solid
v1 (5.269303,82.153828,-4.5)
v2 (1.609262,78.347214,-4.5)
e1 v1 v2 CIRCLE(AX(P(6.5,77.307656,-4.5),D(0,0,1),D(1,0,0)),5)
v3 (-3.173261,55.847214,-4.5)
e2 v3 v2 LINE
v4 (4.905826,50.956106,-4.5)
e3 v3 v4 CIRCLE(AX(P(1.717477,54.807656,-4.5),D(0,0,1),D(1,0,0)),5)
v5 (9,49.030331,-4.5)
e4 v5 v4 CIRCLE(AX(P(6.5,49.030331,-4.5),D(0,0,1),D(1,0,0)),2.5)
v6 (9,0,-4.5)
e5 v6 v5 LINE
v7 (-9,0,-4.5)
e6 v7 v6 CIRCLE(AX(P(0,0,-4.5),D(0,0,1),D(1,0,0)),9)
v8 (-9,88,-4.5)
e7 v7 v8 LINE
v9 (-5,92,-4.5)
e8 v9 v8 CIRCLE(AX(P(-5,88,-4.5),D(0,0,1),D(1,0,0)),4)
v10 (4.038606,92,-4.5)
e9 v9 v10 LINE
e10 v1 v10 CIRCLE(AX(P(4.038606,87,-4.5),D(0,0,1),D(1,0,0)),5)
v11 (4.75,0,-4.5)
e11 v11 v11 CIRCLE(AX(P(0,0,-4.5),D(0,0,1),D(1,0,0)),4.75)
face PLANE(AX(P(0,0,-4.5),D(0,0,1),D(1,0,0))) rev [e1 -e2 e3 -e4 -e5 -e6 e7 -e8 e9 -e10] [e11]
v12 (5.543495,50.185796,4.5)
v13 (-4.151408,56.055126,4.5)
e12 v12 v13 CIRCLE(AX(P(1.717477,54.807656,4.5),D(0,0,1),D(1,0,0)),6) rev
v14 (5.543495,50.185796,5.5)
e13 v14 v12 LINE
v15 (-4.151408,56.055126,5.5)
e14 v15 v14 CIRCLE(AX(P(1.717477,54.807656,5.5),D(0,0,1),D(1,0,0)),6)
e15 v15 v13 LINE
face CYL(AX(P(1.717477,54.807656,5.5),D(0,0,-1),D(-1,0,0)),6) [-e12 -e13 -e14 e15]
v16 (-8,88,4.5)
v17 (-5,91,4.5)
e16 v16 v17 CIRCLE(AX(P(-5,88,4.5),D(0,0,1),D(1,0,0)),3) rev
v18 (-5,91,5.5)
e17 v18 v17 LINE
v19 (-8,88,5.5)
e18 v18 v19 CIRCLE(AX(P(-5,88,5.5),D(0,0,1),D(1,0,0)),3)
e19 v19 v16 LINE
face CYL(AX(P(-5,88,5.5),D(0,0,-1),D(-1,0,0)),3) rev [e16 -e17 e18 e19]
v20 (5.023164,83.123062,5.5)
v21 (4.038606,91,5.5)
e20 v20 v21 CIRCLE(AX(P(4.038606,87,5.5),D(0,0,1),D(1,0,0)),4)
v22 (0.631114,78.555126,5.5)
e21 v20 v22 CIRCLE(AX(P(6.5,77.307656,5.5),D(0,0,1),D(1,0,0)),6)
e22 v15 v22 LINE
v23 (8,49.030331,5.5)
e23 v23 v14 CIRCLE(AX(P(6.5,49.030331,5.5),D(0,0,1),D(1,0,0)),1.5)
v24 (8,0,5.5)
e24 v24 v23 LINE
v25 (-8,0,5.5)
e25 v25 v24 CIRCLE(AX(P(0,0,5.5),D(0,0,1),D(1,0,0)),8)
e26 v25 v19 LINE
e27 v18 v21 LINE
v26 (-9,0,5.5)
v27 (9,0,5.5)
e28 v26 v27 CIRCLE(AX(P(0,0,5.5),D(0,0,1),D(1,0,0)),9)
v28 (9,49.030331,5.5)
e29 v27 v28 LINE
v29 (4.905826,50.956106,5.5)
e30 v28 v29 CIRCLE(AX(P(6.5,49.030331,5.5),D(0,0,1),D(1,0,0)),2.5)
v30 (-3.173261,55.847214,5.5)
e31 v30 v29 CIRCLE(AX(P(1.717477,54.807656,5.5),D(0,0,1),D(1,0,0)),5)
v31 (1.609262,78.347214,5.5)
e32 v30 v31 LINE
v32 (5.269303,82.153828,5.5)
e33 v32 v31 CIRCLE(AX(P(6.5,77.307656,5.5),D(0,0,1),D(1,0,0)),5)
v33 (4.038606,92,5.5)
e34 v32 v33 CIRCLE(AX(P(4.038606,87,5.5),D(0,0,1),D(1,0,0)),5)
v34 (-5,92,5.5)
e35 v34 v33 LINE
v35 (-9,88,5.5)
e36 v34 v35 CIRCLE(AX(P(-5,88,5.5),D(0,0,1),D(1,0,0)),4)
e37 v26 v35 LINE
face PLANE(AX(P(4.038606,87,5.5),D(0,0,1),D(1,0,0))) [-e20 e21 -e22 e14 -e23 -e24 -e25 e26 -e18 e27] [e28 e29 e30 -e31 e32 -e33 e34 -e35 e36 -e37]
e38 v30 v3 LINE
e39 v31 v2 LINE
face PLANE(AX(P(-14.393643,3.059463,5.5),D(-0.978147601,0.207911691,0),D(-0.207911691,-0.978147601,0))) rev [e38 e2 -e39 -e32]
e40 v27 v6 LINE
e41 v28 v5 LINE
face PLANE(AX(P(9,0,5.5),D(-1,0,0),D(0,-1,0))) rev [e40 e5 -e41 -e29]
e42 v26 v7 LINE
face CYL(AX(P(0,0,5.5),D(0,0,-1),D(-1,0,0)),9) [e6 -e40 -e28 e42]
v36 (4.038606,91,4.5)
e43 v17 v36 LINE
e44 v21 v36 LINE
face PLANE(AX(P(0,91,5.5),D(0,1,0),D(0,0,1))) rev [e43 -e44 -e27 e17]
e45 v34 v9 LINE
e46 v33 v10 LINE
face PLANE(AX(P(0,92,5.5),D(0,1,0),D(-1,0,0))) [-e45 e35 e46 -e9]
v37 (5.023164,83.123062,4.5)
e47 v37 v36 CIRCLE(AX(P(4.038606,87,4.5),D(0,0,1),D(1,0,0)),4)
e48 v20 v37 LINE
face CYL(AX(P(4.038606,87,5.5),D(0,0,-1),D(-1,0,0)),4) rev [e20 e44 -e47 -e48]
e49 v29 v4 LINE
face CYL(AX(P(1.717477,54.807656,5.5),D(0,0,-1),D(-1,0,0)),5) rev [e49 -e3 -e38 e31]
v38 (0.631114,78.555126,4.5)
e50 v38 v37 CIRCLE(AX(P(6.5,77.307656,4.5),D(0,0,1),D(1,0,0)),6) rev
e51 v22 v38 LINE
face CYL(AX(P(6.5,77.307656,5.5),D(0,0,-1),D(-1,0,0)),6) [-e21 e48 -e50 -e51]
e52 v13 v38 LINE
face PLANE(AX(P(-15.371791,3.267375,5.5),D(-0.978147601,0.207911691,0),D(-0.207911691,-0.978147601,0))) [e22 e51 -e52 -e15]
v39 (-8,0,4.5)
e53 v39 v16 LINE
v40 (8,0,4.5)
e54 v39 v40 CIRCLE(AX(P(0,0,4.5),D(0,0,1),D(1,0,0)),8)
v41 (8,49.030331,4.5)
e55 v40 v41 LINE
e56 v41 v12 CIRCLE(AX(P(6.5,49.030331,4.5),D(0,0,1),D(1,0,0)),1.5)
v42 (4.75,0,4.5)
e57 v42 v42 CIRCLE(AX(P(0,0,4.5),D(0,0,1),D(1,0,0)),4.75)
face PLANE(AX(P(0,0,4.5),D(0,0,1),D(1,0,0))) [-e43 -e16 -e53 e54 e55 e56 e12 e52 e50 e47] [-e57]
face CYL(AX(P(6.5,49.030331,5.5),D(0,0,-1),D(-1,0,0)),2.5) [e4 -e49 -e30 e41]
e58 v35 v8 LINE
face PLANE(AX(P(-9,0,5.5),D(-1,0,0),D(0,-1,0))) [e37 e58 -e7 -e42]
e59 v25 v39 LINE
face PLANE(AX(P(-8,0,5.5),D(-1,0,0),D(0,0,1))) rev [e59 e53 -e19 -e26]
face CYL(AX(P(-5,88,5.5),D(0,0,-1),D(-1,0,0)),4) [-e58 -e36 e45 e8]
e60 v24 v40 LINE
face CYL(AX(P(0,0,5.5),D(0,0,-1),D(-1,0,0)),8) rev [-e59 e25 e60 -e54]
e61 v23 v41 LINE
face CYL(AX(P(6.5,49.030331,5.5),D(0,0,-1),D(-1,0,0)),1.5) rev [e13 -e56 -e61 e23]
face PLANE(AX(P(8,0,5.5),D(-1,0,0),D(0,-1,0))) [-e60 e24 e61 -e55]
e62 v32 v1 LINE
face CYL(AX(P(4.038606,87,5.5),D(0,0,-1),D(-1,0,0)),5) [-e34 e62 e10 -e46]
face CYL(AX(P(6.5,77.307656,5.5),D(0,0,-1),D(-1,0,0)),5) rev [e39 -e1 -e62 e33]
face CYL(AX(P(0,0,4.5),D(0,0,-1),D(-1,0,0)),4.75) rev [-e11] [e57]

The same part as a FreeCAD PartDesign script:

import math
import FreeCAD as App
import Part
import Sketcher

V = App.Vector
Q = App.Units.Quantity

doc = App.newDocument("Part")
body = doc.addObject("PartDesign::Body", "Body")

sketch1 = body.newObject("Sketcher::SketchObject", "Sketch")
sketch1.AttachmentSupport = (doc.getObject("XY_Plane"), [""])
sketch1.MapMode = "FlatFace"
sketch1.addGeometry([
    Part.LineSegment(V(-8, 88, 0), V(-8, 0, 0)),
    Part.ArcOfCircle(Part.Circle(V(0, 0, 0), V(0, 0, 1), 8), math.radians(180), math.radians(360)),
    Part.LineSegment(V(8, 0, 0), V(8, 49, 0)),
    Part.ArcOfCircle(Part.Circle(V(6.5, 49, 0), V(0, 0, 1), 1.5), math.radians(0), math.radians(130)),
    Part.ArcOfCircle(Part.Circle(V(1.7, 54.8, 0), V(0, 0, 1), 6), math.radians(168), math.radians(310)),
    Part.LineSegment(V(-4.2, 56.1, 0), V(0.6, 78.6, 0)),
    Part.ArcOfCircle(Part.Circle(V(6.5, 77.3, 0), V(0, 0, 1), 6), math.radians(104), math.radians(168)),
    Part.ArcOfCircle(Part.Circle(V(4, 87, 0), V(0, 0, 1), 4), math.radians(-76), math.radians(90)),
    Part.LineSegment(V(4, 91, 0), V(-5, 91, 0)),
    Part.ArcOfCircle(Part.Circle(V(-5, 88, 0), V(0, 0, 1), 3), math.radians(90), math.radians(180)),
    Part.Circle(V(0, 0, 0), V(0, 0, 1), 4.8),
], False)
sketch1.addConstraint([
    Sketcher.Constraint("Tangent", 0, 2, 1, 1),
    Sketcher.Constraint("Tangent", 1, 2, 2, 1),
    Sketcher.Constraint("Tangent", 2, 2, 3, 1),
    Sketcher.Constraint("Tangent", 3, 2, 4, 2),
    Sketcher.Constraint("Tangent", 4, 1, 5, 1),
    Sketcher.Constraint("Tangent", 5, 2, 6, 2),
    Sketcher.Constraint("Tangent", 6, 1, 7, 1),
    Sketcher.Constraint("Tangent", 7, 2, 8, 1),
    Sketcher.Constraint("Tangent", 8, 2, 9, 1),
    Sketcher.Constraint("Tangent", 9, 2, 0, 1),
    Sketcher.Constraint("Vertical", 0),
    Sketcher.Constraint("Vertical", 2),
    Sketcher.Constraint("Horizontal", 8),
    Sketcher.Constraint("Coincident", 1, 3, -1, 1),
    Sketcher.Constraint("Coincident", 10, 3, -1, 1),
    Sketcher.Constraint("Equal", 4, 6),
    Sketcher.Constraint("Vertical", 3, 3, 6, 3),
    Sketcher.Constraint("Radius", 1, 8.0),
    Sketcher.Constraint("Radius", 4, 6.0),
    Sketcher.Constraint("Radius", 7, 4.0),
    Sketcher.Constraint("Radius", 9, 3.0),
    Sketcher.Constraint("Diameter", 10, 9.5),
    Sketcher.Constraint("Radius", 3, 1.5),
    Sketcher.Constraint("DistanceY", 0, 2, 0, 1, 88.0),
    Sketcher.Constraint("Angle", 5, Q("78 deg")),
    Sketcher.Constraint("DistanceY", 4, 3, 6, 3, 22.5),
    Sketcher.Constraint("DistanceY", 2, 1, 2, 2, 49.030331),
])
pad1 = body.newObject("PartDesign::Pad", "Pad")
pad1.Profile = sketch1
pad1.Length = 9
pad1.Midplane = True

sketch2 = body.newObject("Sketcher::SketchObject", "Sketch001")
sketch2.AttachmentSupport = (doc.getObject("XY_Plane"), [""])
sketch2.MapMode = "FlatFace"
sketch2.AttachmentOffset = App.Placement(V(0, 0, 5.5), App.Rotation())
sketch2.addGeometry([
    Part.ArcOfCircle(Part.Circle(V(6.5, 77.3, 0), V(0, 0, 1), 5), math.radians(104), math.radians(168)),
    Part.ArcOfCircle(Part.Circle(V(4, 87, 0), V(0, 0, 1), 5), math.radians(-76), math.radians(90)),
    Part.LineSegment(V(4, 92, 0), V(-5, 92, 0)),
    Part.ArcOfCircle(Part.Circle(V(-5, 88, 0), V(0, 0, 1), 4), math.radians(90), math.radians(180)),
    Part.LineSegment(V(-9, 88, 0), V(-9, 0, 0)),
    Part.ArcOfCircle(Part.Circle(V(0, 0, 0), V(0, 0, 1), 9), math.radians(180), math.radians(360)),
    Part.LineSegment(V(9, 0, 0), V(9, 49, 0)),
    Part.ArcOfCircle(Part.Circle(V(6.5, 49, 0), V(0, 0, 1), 2.5), math.radians(0), math.radians(130)),
    Part.ArcOfCircle(Part.Circle(V(1.7, 54.8, 0), V(0, 0, 1), 5), math.radians(168), math.radians(310)),
    Part.LineSegment(V(-3.2, 55.8, 0), V(1.6, 78.3, 0)),
    Part.ArcOfCircle(Part.Circle(V(0, 0, 0), V(0, 0, 1), 8), math.radians(180), math.radians(360)),
    Part.LineSegment(V(-8, 0, 0), V(-8, 88, 0)),
    Part.ArcOfCircle(Part.Circle(V(-5, 88, 0), V(0, 0, 1), 3), math.radians(90), math.radians(180)),
    Part.LineSegment(V(-5, 91, 0), V(4, 91, 0)),
    Part.ArcOfCircle(Part.Circle(V(4, 87, 0), V(0, 0, 1), 4), math.radians(-76), math.radians(90)),
    Part.ArcOfCircle(Part.Circle(V(6.5, 77.3, 0), V(0, 0, 1), 6), math.radians(104), math.radians(168)),
    Part.LineSegment(V(0.6, 78.6, 0), V(-4.2, 56.1, 0)),
    Part.ArcOfCircle(Part.Circle(V(1.7, 54.8, 0), V(0, 0, 1), 6), math.radians(168), math.radians(310)),
    Part.ArcOfCircle(Part.Circle(V(6.5, 49, 0), V(0, 0, 1), 1.5), math.radians(0), math.radians(130)),
    Part.LineSegment(V(8, 49, 0), V(8, 0, 0)),
], False)
sketch2.addConstraint([
    Sketcher.Constraint("Tangent", 0, 1, 1, 1),
    Sketcher.Constraint("Tangent", 1, 2, 2, 1),
    Sketcher.Constraint("Tangent", 2, 2, 3, 1),
    Sketcher.Constraint("Tangent", 3, 2, 4, 1),
    Sketcher.Constraint("Tangent", 4, 2, 5, 1),
    Sketcher.Constraint("Tangent", 5, 2, 6, 1),
    Sketcher.Constraint("Tangent", 6, 2, 7, 1),
    Sketcher.Constraint("Tangent", 7, 2, 8, 2),
    Sketcher.Constraint("Tangent", 8, 1, 9, 1),
    Sketcher.Constraint("Tangent", 9, 2, 0, 2),
    Sketcher.Constraint("Tangent", 10, 1, 11, 1),
    Sketcher.Constraint("Tangent", 11, 2, 12, 2),
    Sketcher.Constraint("Tangent", 12, 1, 13, 1),
    Sketcher.Constraint("Tangent", 13, 2, 14, 2),
    Sketcher.Constraint("Tangent", 14, 1, 15, 1),
    Sketcher.Constraint("Tangent", 15, 2, 16, 1),
    Sketcher.Constraint("Tangent", 16, 2, 17, 1),
    Sketcher.Constraint("Tangent", 17, 2, 18, 2),
    Sketcher.Constraint("Tangent", 18, 1, 19, 1),
    Sketcher.Constraint("Tangent", 19, 2, 10, 2),
    Sketcher.Constraint("Horizontal", 2),
    Sketcher.Constraint("Vertical", 4),
    Sketcher.Constraint("Vertical", 6),
    Sketcher.Constraint("Vertical", 11),
    Sketcher.Constraint("Horizontal", 13),
    Sketcher.Constraint("Vertical", 19),
    Sketcher.Constraint("Coincident", 5, 3, -1, 1),
    Sketcher.Constraint("Coincident", 10, 3, -1, 1),
    Sketcher.Constraint("Coincident", 12, 3, 3, 3),
    Sketcher.Constraint("Coincident", 14, 3, 1, 3),
    Sketcher.Constraint("Coincident", 15, 3, 0, 3),
    Sketcher.Constraint("Coincident", 17, 3, 8, 3),
    Sketcher.Constraint("Coincident", 18, 3, 7, 3),
    Sketcher.Constraint("Equal", 0, 1),
    Sketcher.Constraint("Equal", 1, 8),
    Sketcher.Constraint("Equal", 3, 14),
    Sketcher.Constraint("Vertical", 0, 3, 7, 3),
    Sketcher.Constraint("Radius", 0, 5.0),
    Sketcher.Constraint("Radius", 3, 4.0),
    Sketcher.Constraint("Radius", 5, 9.0),
    Sketcher.Constraint("Radius", 7, 2.5),
    Sketcher.Constraint("DistanceY", 4, 2, 4, 1, 88.0),
    Sketcher.Constraint("Angle", 9, Q("78 deg")),
    Sketcher.Constraint("DistanceY", 8, 3, 0, 3, 22.5),
    Sketcher.Constraint("DistanceY", 6, 1, 6, 2, 49.030331),
])
pad2 = body.newObject("PartDesign::Pad", "Pad001")
pad2.Profile = sketch2
pad2.Length = 10
pad2.Reversed = True

doc.recompute()
